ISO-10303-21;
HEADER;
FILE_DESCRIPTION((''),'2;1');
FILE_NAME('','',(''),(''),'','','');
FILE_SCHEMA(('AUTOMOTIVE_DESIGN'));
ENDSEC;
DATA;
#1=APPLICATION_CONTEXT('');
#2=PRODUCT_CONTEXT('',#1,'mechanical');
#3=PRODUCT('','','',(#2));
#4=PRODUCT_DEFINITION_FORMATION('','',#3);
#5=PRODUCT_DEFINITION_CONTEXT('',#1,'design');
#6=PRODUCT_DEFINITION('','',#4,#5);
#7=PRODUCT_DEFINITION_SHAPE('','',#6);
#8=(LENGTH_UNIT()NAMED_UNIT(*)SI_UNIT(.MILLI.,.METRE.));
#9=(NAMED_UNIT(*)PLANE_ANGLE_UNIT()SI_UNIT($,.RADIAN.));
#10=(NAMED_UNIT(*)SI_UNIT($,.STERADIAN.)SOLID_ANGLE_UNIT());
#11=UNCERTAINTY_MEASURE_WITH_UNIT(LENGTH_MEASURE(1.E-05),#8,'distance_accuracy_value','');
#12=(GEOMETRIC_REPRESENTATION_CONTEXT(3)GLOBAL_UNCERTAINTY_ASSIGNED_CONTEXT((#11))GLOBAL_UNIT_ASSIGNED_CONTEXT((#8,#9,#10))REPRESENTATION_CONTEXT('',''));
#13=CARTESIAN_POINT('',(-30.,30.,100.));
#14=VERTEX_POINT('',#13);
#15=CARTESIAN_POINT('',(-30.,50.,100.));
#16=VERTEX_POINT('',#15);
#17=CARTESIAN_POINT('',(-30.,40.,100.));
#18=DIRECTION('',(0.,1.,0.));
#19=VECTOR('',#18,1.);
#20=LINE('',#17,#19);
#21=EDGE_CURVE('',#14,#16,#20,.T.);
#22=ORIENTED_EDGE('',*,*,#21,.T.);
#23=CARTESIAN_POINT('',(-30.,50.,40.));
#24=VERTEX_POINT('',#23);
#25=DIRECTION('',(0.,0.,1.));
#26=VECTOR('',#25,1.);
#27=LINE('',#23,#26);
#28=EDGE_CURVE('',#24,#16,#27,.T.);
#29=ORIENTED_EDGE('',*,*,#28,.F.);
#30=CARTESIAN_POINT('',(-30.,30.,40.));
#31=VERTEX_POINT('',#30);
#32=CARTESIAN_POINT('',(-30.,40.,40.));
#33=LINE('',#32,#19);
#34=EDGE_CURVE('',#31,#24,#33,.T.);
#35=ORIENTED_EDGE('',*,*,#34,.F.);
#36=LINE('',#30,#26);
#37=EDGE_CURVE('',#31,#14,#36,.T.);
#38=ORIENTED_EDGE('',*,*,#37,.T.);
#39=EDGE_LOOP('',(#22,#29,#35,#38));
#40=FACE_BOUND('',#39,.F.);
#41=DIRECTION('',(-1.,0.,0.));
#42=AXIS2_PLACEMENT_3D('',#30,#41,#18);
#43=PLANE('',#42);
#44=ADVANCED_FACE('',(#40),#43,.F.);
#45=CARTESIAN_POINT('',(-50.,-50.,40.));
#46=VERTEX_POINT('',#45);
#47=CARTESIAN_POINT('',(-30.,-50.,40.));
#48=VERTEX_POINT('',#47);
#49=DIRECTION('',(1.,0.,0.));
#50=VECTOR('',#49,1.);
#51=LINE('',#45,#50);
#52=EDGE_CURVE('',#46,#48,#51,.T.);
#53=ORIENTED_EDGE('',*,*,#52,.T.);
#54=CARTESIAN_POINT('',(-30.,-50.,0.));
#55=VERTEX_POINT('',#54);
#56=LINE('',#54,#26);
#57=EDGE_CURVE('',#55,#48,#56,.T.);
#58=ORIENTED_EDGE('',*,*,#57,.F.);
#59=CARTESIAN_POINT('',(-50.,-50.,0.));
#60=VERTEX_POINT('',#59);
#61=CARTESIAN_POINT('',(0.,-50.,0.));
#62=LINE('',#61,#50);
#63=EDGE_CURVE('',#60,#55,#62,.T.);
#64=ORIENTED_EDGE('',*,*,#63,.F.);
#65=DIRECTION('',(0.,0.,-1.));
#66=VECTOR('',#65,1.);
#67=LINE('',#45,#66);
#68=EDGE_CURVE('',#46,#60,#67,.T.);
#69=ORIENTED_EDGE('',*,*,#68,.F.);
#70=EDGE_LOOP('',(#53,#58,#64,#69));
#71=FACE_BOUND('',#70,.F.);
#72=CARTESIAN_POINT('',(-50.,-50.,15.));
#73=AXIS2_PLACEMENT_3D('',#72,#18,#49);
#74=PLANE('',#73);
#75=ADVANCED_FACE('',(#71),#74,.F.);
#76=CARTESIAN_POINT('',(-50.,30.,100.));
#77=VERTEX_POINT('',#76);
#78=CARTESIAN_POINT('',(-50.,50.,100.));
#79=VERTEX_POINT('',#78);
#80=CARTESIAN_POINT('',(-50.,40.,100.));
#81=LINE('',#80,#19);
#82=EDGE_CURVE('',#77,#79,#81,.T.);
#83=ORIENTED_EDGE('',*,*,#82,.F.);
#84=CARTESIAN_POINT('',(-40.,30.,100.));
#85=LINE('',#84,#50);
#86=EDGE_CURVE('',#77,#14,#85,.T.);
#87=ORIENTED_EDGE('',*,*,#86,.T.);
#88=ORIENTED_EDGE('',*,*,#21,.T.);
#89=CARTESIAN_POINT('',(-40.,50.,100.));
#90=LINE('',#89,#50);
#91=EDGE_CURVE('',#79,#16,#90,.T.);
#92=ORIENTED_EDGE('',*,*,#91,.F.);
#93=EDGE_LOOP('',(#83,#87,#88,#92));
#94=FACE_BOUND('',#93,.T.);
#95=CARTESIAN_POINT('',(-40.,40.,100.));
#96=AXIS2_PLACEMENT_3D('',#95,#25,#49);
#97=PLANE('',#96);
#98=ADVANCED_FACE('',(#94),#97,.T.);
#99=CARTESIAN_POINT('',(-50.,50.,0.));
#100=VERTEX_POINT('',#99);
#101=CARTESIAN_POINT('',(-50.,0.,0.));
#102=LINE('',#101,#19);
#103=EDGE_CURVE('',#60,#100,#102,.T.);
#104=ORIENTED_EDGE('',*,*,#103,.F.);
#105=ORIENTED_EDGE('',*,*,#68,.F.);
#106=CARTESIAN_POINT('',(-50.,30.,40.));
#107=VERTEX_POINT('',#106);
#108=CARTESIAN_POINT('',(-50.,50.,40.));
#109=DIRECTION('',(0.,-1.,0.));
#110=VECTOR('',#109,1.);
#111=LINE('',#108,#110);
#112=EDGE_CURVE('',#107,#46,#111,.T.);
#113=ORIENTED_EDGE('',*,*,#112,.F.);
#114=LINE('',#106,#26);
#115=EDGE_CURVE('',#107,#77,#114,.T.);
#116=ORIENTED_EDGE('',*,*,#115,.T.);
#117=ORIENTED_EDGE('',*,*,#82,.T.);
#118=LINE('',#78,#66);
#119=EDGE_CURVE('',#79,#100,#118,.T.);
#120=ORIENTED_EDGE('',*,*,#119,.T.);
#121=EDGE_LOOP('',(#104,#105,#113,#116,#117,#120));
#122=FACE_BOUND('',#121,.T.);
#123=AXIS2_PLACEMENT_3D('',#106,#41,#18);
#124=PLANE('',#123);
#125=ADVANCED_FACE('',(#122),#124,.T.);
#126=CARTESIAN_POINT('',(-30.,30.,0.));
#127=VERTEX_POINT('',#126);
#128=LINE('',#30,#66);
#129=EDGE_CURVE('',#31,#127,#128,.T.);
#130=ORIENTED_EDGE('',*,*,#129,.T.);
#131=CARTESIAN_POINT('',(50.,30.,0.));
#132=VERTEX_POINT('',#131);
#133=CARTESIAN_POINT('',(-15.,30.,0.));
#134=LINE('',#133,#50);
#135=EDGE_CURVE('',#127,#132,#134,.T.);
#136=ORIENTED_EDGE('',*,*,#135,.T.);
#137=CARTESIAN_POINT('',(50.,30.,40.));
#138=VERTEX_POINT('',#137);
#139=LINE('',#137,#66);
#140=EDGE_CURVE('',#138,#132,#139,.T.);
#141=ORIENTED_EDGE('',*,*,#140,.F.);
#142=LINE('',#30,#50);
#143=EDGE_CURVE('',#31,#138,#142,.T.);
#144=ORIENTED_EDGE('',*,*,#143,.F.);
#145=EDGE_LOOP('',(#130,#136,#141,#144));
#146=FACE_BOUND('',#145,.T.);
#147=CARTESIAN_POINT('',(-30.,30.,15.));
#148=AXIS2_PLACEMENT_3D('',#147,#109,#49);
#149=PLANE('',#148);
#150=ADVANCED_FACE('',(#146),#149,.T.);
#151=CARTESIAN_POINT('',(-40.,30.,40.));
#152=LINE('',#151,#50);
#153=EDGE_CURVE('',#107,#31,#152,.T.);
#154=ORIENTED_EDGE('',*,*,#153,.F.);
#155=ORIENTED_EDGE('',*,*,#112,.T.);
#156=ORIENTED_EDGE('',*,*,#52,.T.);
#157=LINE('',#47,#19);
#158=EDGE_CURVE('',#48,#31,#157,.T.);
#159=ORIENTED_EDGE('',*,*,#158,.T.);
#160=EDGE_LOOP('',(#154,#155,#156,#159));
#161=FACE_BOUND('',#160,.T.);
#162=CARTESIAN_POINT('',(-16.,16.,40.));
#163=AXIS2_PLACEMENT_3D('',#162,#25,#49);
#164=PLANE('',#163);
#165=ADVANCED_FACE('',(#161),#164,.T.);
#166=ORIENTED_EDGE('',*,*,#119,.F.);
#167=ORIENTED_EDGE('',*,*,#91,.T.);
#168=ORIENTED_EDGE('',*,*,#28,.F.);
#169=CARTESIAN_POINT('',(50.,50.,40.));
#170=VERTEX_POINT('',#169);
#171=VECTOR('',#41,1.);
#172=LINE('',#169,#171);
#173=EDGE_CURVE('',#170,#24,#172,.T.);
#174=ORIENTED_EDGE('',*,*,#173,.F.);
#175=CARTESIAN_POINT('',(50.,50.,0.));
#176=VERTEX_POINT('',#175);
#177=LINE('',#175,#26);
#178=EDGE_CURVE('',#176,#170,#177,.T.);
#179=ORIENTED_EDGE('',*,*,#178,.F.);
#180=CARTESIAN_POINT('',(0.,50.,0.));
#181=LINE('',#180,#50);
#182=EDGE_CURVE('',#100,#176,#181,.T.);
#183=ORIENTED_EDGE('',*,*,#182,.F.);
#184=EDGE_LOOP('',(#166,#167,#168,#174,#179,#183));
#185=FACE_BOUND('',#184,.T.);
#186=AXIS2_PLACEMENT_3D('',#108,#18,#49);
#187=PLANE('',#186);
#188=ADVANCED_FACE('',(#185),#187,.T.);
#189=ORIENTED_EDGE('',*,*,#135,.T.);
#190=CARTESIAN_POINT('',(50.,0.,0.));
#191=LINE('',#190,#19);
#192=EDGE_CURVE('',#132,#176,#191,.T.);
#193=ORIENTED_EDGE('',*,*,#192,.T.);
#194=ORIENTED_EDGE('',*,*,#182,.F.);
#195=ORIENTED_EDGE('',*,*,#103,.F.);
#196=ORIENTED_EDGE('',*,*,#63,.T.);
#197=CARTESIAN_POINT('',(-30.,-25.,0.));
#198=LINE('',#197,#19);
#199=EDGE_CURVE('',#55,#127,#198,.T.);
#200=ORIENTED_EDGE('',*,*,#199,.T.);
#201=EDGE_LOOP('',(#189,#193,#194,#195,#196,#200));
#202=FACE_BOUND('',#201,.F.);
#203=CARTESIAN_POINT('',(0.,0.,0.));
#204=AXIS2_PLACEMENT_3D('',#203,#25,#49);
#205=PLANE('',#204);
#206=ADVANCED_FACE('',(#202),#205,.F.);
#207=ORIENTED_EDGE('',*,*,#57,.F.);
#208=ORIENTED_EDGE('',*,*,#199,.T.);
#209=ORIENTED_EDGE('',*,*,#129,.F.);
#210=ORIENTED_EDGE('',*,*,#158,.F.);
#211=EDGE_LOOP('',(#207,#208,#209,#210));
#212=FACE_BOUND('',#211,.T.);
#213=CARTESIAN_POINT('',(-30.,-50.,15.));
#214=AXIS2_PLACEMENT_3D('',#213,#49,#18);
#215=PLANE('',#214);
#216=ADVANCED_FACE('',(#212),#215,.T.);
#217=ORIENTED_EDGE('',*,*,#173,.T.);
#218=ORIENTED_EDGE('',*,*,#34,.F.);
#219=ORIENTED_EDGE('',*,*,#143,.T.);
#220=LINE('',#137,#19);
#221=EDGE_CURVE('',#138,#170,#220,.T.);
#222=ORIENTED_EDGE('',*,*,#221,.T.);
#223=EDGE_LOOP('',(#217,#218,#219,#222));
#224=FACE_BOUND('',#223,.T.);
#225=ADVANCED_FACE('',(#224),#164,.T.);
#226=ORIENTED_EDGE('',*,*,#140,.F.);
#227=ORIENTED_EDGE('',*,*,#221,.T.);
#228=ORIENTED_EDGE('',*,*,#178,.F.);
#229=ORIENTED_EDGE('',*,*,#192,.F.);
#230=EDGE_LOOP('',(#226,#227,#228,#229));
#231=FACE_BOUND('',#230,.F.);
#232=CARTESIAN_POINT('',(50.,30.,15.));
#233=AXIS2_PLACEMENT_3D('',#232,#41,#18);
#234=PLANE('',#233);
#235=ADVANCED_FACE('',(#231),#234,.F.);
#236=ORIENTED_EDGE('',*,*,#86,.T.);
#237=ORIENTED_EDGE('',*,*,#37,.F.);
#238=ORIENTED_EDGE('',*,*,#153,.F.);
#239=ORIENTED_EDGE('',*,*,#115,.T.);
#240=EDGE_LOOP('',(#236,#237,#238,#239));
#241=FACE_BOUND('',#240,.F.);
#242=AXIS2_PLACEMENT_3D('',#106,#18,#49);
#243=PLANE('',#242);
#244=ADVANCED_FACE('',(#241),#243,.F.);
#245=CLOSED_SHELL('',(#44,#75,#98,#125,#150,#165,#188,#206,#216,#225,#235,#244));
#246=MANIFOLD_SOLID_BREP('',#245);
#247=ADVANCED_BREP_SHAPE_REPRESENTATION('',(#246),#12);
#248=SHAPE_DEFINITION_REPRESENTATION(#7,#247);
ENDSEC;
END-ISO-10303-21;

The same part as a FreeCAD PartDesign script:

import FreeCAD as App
import Part
import Sketcher
Q = App.Units.Quantity


def add_polygon(sketch, points):
    """Adds a closed chain of lines whose ends are joined by coincident constraints."""
    first, n = sketch.GeometryCount, len(points)
    for a, b in zip(points, points[1:] + points[:1]):
        sketch.addGeometry(Part.LineSegment(App.Vector(*a, 0), App.Vector(*b, 0)), False)
    for i in range(n):
        sketch.addConstraint(Sketcher.Constraint("Coincident", first + i, 2, first + (i + 1) % n, 1))

doc = App.newDocument("Part")
body = doc.addObject("PartDesign::Body", "Body")

# Sketch on XY plane
sketch1 = body.newObject("Sketcher::SketchObject", "Sketch")
sketch1.AttachmentSupport = (doc.getObject("XY_Plane"), [""])
sketch1.MapMode = "FlatFace"
add_polygon(sketch1, [(-50, 50), (-50, -50), (50, -50), (50, 50)])  # lines 0-3
sketch1.addConstraint([
    Sketcher.Constraint("Vertical", 0),
    Sketcher.Constraint("Horizontal", 1),
    Sketcher.Constraint("Vertical", 2),
    Sketcher.Constraint("Horizontal", 3),
    Sketcher.Constraint("Symmetric", 0, 2, 2, 2, -1, 1),
    Sketcher.Constraint("Equal", 3, 0),
    Sketcher.Constraint("DistanceX", 1, 1, 1, 2, Q("100 mm")),
])
pad1 = body.newObject("PartDesign::Pad", "Pad")
pad1.Profile = sketch1
pad1.Length = 15

# Sketch on XY plane
sketch2 = body.newObject("Sketcher::SketchObject", "Sketch001")
sketch2.AttachmentSupport = (doc.getObject("XY_Plane"), [""])
sketch2.MapMode = "FlatFace"
sketch2.AttachmentOffset = App.Placement(App.Vector(0, 0, 15), App.Rotation())
add_polygon(sketch2, [(-30, -50), (-30, 30), (50, 30), (50, 50), (-50, 50), (-50, -50)])  # lines 0-5
sketch2.addConstraint([
    Sketcher.Constraint("Vertical", 0),
    Sketcher.Constraint("Horizontal", 1),
    Sketcher.Constraint("Vertical", 2),
    Sketcher.Constraint("Horizontal", 3),
    Sketcher.Constraint("Vertical", 4),
    Sketcher.Constraint("Horizontal", 5),
    Sketcher.Constraint("Symmetric", 2, 2, 4, 2, -1, 1),
    Sketcher.Constraint("Equal", 1, 0),
    Sketcher.Constraint("Equal", 5, 2),
    Sketcher.Constraint("DistanceX", 1, 1, 1, 2, Q("80 mm")),
    Sketcher.Constraint("DistanceX", 3, 2, 3, 1, Q("100 mm")),
])
pad2 = body.newObject("PartDesign::Pad", "Pad001")
pad2.Profile = sketch2
pad2.Length = 25

# Sketch on XY plane
sketch3 = body.newObject("Sketcher::SketchObject", "Sketch002")
sketch3.AttachmentSupport = (doc.getObject("XY_Plane"), [""])
sketch3.MapMode = "FlatFace"
sketch3.AttachmentOffset = App.Placement(App.Vector(0, 0, 15), App.Rotation())
sketch3.addGeometry(Part.Circle(App.Vector(10, -10, 0), App.Vector(0, 0, 1), 30), False)
sketch3.addConstraint([
    Sketcher.Constraint("Diameter", 0, Q("60 mm")),
    Sketcher.Constraint("DistanceX", -1, 1, 0, 3, Q("10 mm")),
    Sketcher.Constraint("DistanceY", 0, 3, -1, 1, Q("10 mm")),
])
pocket1 = body.newObject("PartDesign::Pocket", "Pocket")
pocket1.Profile = sketch3
pocket1.Type = "ThroughAll"

# Sketch on XY plane
sketch4 = body.newObject("Sketcher::SketchObject", "Sketch003")
sketch4.AttachmentSupport = (doc.getObject("XY_Plane"), [""])
sketch4.MapMode = "FlatFace"
sketch4.AttachmentOffset = App.Placement(App.Vector(0, 0, 40), App.Rotation())
add_polygon(sketch4, [(-50, 50), (-50, 30), (-30, 30), (-30, 50)])  # lines 0-3
sketch4.addConstraint([
    Sketcher.Constraint("Vertical", 0),
    Sketcher.Constraint("Horizontal", 1),
    Sketcher.Constraint("Vertical", 2),
    Sketcher.Constraint("Horizontal", 3),
    Sketcher.Constraint("Equal", 3, 0),
    Sketcher.Constraint("DistanceX", 1, 1, 1, 2, Q("20 mm")),
    Sketcher.Constraint("DistanceX", 0, 2, -1, 1, Q("50 mm")),
    Sketcher.Constraint("DistanceY", -1, 1, 0, 2, Q("30 mm")),
])
pad3 = body.newObject("PartDesign::Pad", "Pad002")
pad3.Profile = sketch4
pad3.Length = 60

# Sketch on XY plane
sketch5 = body.newObject("Sketcher::SketchObject", "Sketch004")
sketch5.AttachmentSupport = (doc.getObject("XY_Plane"), [""])
sketch5.MapMode = "FlatFace"
sketch5.AttachmentOffset = App.Placement(App.Vector(0, 0, 15), App.Rotation())
add_polygon(sketch5, [(-30, 30), (-30, -50), (50, -50), (50, 30)])  # lines 0-3
sketch5.addConstraint([
    Sketcher.Constraint("Vertical", 0),
    Sketcher.Constraint("Horizontal", 1),
    Sketcher.Constraint("Vertical", 2),
    Sketcher.Constraint("Horizontal", 3),
    Sketcher.Constraint("Equal", 3, 0),
    Sketcher.Constraint("DistanceX", 1, 1, 1, 2, Q("80 mm")),
    Sketcher.Constraint("DistanceX", 0, 2, -1, 1, Q("30 mm")),
    Sketcher.Constraint("DistanceY", 0, 2, -1, 1, Q("50 mm")),
])
pocket2 = body.newObject("PartDesign::Pocket", "Pocket001")
pocket2.Profile = sketch5
pocket2.Type = "ThroughAll"

doc.recompute()
